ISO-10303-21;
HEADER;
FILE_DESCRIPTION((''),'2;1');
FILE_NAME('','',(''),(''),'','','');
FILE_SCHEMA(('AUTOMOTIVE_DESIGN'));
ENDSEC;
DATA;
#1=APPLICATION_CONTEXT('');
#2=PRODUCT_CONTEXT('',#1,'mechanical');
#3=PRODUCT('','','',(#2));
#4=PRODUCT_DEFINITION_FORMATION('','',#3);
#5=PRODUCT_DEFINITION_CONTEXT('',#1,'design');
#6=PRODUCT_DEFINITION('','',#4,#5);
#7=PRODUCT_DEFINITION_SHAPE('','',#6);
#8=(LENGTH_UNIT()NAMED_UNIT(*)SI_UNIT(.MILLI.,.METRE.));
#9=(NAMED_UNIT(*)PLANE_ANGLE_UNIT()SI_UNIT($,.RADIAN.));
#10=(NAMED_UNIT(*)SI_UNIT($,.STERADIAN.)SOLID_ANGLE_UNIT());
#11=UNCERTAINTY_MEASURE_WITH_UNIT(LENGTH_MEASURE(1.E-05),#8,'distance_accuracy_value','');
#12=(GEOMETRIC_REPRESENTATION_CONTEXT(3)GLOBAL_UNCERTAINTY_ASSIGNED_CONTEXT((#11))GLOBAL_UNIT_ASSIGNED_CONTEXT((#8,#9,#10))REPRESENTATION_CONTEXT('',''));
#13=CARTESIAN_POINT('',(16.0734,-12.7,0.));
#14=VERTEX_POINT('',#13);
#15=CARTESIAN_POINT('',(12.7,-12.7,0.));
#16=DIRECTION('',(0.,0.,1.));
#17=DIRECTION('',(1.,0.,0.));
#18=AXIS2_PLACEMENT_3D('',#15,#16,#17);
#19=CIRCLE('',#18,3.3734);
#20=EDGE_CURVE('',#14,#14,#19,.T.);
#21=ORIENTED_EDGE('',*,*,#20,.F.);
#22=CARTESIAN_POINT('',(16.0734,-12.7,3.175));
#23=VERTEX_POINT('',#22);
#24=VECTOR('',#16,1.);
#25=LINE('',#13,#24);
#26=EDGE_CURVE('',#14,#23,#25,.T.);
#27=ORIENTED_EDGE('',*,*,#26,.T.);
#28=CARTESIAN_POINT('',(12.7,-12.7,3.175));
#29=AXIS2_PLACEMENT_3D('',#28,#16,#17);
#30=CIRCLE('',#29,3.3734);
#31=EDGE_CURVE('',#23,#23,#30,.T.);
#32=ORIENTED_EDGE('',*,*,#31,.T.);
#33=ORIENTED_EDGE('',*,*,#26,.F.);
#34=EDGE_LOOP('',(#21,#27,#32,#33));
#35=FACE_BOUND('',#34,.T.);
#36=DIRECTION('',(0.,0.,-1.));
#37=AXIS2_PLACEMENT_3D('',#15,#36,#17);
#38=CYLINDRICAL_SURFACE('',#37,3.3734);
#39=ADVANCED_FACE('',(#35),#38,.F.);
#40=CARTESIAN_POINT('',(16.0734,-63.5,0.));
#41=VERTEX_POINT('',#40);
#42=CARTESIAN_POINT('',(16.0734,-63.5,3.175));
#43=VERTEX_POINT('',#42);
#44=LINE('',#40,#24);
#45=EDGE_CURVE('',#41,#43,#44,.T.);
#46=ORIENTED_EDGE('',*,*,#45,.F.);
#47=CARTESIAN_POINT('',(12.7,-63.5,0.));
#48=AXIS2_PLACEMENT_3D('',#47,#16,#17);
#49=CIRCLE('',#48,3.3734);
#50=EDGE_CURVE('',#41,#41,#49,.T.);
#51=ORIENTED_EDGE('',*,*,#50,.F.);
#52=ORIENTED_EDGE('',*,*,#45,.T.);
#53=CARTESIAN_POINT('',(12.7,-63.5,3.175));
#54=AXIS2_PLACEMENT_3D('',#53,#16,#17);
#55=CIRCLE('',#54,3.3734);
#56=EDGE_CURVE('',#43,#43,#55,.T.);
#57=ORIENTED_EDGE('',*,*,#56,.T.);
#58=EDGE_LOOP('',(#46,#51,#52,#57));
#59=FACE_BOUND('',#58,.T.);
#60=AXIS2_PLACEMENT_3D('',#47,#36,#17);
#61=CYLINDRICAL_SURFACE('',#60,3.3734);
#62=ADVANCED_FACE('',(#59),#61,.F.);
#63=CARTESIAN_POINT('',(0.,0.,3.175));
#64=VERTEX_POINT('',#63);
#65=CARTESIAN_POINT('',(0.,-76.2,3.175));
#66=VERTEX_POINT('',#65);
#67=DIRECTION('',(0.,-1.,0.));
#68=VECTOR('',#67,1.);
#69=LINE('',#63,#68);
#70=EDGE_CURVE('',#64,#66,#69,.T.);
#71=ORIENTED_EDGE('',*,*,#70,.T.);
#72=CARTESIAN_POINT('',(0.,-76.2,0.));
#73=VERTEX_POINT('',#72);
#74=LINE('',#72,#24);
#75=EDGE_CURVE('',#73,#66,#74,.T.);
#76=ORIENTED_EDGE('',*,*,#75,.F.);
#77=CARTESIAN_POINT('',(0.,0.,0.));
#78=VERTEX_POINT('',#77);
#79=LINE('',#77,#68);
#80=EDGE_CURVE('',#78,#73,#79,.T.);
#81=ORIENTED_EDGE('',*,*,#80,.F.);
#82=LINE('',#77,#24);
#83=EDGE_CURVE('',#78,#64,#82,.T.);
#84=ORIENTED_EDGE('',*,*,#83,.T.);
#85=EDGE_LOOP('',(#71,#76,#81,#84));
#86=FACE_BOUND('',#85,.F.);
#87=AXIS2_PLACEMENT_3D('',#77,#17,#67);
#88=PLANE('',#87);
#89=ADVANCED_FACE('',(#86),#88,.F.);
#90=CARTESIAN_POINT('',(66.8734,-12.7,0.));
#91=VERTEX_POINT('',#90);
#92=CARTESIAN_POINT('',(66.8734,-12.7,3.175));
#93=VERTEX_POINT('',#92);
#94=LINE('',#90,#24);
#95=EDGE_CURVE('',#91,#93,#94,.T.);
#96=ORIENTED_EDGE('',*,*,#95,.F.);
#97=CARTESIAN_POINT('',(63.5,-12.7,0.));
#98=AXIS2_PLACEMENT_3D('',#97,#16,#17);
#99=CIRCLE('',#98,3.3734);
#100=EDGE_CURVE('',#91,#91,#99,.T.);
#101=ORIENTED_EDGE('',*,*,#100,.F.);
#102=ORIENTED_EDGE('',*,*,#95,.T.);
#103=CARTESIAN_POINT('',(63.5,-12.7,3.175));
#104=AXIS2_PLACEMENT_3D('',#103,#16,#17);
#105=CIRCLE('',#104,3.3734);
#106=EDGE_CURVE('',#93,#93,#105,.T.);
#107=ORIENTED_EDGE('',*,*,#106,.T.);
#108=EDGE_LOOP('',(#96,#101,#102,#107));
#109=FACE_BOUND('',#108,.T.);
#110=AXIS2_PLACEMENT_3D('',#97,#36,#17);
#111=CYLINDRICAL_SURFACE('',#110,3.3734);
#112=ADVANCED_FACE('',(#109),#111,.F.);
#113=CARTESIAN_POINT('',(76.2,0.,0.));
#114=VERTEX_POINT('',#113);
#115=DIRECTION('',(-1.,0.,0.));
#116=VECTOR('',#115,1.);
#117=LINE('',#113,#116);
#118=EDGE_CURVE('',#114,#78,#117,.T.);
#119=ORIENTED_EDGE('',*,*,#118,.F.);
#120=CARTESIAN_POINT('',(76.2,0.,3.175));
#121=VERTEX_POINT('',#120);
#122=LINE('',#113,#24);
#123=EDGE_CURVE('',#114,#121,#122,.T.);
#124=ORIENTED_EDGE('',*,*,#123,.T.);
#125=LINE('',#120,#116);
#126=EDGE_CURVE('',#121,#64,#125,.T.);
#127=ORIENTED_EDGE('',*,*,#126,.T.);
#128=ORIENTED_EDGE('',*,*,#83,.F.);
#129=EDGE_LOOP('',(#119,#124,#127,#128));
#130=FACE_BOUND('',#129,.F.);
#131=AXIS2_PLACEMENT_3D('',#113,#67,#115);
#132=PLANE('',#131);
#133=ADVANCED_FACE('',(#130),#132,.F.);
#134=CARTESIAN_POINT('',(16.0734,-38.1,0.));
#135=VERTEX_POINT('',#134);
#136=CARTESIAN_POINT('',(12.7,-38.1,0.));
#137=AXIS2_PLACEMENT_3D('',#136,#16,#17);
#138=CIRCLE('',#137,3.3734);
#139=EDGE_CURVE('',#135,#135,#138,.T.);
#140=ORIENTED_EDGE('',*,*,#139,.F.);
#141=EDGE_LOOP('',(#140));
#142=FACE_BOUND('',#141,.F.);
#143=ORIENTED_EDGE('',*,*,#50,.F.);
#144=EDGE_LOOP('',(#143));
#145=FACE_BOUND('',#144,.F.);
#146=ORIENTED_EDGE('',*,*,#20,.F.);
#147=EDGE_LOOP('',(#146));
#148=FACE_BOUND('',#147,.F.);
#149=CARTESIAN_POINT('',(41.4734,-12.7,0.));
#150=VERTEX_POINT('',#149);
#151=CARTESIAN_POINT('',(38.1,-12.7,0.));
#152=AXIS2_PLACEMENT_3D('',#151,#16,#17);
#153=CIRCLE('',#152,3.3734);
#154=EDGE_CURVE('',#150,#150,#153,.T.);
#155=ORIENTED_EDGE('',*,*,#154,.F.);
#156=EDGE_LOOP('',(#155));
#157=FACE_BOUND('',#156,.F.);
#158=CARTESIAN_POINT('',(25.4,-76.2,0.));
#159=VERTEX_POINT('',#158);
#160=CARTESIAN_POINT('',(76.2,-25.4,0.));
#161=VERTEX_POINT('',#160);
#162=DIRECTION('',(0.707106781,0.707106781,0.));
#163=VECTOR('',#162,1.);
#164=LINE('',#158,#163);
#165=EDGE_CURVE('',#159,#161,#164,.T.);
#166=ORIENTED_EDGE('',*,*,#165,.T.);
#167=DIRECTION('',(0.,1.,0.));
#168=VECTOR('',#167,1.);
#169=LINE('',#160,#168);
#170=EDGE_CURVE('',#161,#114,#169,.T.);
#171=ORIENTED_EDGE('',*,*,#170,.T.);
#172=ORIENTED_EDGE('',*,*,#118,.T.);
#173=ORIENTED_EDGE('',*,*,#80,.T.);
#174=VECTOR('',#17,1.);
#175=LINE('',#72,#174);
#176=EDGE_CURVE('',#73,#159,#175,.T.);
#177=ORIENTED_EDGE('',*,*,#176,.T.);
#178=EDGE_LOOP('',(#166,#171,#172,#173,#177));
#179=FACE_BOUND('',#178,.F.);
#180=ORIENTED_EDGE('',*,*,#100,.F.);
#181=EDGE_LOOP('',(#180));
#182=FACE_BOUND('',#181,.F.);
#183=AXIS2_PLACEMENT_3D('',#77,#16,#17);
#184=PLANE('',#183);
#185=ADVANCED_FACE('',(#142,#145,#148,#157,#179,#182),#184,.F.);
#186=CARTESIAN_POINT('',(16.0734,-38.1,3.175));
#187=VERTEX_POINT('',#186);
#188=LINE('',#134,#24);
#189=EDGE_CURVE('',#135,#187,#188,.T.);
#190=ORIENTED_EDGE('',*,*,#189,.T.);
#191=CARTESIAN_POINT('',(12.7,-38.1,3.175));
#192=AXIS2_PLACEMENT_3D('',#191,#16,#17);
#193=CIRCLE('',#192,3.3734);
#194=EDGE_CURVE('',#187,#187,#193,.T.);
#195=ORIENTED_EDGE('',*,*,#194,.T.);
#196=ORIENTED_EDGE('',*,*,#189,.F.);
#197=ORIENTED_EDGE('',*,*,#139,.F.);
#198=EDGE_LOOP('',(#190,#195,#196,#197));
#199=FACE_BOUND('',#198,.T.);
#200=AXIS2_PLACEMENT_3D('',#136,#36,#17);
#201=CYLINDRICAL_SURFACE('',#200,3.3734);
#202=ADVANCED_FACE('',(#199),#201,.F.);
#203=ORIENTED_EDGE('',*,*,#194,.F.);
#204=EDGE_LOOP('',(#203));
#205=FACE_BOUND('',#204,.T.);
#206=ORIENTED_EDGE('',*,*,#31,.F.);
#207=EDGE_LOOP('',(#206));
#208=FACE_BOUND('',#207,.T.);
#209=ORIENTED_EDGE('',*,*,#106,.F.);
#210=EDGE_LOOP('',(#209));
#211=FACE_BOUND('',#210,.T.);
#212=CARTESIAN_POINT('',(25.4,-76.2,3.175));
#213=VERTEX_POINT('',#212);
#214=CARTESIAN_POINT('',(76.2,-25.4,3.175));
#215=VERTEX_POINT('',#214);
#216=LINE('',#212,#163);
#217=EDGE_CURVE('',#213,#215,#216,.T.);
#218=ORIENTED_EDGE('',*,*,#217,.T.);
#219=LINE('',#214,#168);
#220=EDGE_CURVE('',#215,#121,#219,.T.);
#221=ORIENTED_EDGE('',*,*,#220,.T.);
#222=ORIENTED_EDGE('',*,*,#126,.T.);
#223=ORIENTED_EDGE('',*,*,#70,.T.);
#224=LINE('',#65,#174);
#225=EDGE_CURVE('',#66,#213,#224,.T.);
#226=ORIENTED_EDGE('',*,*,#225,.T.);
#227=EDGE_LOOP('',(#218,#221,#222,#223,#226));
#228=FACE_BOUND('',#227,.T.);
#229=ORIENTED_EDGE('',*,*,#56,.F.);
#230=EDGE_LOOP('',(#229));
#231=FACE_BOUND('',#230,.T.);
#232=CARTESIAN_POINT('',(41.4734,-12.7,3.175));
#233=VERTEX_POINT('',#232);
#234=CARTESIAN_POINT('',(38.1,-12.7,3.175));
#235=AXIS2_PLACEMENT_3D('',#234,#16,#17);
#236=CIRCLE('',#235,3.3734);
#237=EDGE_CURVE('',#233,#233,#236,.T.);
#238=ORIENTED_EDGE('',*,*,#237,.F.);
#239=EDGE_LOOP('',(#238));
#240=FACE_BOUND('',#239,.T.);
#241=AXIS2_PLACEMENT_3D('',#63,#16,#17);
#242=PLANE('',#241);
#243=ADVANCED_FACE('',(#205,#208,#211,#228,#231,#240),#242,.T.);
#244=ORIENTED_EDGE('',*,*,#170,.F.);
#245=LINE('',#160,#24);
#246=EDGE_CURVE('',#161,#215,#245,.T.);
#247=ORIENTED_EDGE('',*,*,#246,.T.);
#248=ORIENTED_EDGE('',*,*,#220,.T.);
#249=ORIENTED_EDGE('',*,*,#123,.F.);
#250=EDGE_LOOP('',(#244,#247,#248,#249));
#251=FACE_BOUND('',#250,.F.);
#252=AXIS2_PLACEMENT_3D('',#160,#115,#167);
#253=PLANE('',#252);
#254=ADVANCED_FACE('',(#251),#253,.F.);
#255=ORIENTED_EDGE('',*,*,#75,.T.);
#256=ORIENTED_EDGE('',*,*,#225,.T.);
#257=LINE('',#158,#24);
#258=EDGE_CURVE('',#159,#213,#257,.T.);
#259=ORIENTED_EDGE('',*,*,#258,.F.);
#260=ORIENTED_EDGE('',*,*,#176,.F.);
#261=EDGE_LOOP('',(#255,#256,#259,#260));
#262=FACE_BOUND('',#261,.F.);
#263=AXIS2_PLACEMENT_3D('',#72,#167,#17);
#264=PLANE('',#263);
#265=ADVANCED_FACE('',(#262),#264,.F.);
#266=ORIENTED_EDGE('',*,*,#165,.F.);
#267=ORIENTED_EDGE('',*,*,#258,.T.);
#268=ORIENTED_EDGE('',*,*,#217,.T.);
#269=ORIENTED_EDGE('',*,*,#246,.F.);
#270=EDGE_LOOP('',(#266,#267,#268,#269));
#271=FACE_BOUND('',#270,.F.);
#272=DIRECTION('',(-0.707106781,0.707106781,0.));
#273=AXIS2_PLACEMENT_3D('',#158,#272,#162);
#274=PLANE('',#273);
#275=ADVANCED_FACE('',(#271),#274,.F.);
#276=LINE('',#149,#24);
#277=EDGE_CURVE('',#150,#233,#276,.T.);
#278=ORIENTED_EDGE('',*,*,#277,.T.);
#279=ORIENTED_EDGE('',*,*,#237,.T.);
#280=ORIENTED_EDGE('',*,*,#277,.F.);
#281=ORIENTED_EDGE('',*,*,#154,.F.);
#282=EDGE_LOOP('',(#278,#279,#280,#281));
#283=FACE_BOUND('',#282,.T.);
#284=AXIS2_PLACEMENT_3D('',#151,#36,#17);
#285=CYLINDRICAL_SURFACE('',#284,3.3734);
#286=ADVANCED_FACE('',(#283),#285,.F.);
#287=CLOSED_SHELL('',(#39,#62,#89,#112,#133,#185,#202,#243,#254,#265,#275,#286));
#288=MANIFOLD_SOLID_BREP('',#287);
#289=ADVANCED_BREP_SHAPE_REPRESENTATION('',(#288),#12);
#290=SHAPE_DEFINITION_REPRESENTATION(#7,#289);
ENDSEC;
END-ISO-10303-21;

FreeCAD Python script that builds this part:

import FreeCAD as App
import Part
import Sketcher
from FreeCAD import Vector
Q = App.Units.Quantity

doc = App.newDocument("Part")
body = doc.addObject("PartDesign::Body", "Body")

sketch1 = doc.addObject("Sketcher::SketchObject", "Sketch")
body.addObject(sketch1)
sketch1.AttachmentSupport = (doc.XY_Plane, [""])
sketch1.MapMode = "FlatFace"
sketch1.addGeometry([
    Part.LineSegment(Vector(76.2, 0, 0), Vector(0, 0, 0)),
    Part.LineSegment(Vector(0, 0, 0), Vector(0, -76.2, 0)),
    Part.LineSegment(Vector(0, -76.2, 0), Vector(25.4, -76.2, 0)),
    Part.LineSegment(Vector(25.4, -76.2, 0), Vector(76.2, -25.4, 0)),
    Part.LineSegment(Vector(76.2, -25.4, 0), Vector(76.2, 0, 0)),
    Part.Circle(Vector(12.7, -63.5, 0), Vector(0, 0, 1), 3.4),
    Part.Circle(Vector(12.7, -38.1, 0), Vector(0, 0, 1), 3.4),
    Part.Circle(Vector(12.7, -12.7, 0), Vector(0, 0, 1), 3.4),
    Part.Circle(Vector(38.1, -12.7, 0), Vector(0, 0, 1), 3.4),
    Part.Circle(Vector(63.5, -12.7, 0), Vector(0, 0, 1), 3.4),
], False)
sketch1.addConstraint([
    Sketcher.Constraint("Coincident", 0, 2, 1, 1),
    Sketcher.Constraint("Coincident", 1, 2, 2, 1),
    Sketcher.Constraint("Coincident", 2, 2, 3, 1),
    Sketcher.Constraint("Coincident", 3, 2, 4, 1),
    Sketcher.Constraint("Coincident", 4, 2, 0, 1),
    Sketcher.Constraint("Horizontal", 0),
    Sketcher.Constraint("Vertical", 1),
    Sketcher.Constraint("Horizontal", 2),
    Sketcher.Constraint("Vertical", 4),
    Sketcher.Constraint("Coincident", 0, 2, -1, 1),
    Sketcher.Constraint("Equal", 5, 6),
    Sketcher.Constraint("Equal", 6, 7),
    Sketcher.Constraint("Equal", 7, 8),
    Sketcher.Constraint("Equal", 8, 9),
    Sketcher.Constraint("Horizontal", 7, 3, 8, 3),
    Sketcher.Constraint("Horizontal", 8, 3, 9, 3),
    Sketcher.Constraint("Vertical", 5, 3, 6, 3),
    Sketcher.Constraint("Vertical", 6, 3, 7, 3),
    Sketcher.Constraint("Equal", 0, 1),
    Sketcher.Constraint("Equal", 2, 4),
    Sketcher.Constraint("DistanceX", 0, 2, 0, 1, Q("3 in")),
    Sketcher.Constraint("DistanceX", 2, 1, 2, 2, Q("1 in")),
    Sketcher.Constraint("Diameter", 5, Q("0.265622 in")),
    Sketcher.Constraint("DistanceY", 5, 3, 6, 3, Q("1 in")),
    Sketcher.Constraint("DistanceY", 6, 3, 7, 3, Q("1 in")),
    Sketcher.Constraint("DistanceX", 7, 3, 8, 3, Q("1 in")),
    Sketcher.Constraint("DistanceX", 8, 3, 9, 3, Q("1 in")),
    Sketcher.Constraint("DistanceX", -1, 1, 5, 3, Q("0.5 in")),
    Sketcher.Constraint("DistanceY", 5, 3, -1, 1, Q("2.5 in")),
])
pad1 = doc.addObject("PartDesign::Pad", "Pad")
body.addObject(pad1)
pad1.Profile = sketch1
pad1.Length = Q("0.125 in")

doc.recompute()
